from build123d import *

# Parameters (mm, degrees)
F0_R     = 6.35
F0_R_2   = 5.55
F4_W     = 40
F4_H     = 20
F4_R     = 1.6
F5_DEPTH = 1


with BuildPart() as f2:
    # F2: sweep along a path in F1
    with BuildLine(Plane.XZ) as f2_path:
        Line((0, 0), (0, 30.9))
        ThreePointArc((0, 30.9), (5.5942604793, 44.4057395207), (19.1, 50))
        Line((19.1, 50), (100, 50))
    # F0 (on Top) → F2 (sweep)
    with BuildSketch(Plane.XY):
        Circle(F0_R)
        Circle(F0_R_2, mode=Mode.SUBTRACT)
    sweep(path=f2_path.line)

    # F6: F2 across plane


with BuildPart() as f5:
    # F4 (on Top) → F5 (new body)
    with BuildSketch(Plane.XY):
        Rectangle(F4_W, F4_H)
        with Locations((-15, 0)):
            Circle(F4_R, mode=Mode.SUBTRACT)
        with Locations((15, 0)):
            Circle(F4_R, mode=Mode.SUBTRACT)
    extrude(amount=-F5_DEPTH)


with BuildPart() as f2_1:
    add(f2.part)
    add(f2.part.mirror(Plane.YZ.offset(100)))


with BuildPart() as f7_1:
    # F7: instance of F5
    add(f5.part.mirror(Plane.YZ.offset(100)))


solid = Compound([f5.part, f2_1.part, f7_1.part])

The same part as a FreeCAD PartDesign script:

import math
import FreeCAD as App
import Part
import Sketcher

V = App.Vector
Q = App.Units.Quantity


def add_polygon(sketch, points):
    """Adds a closed chain of lines whose ends are joined by coincident constraints."""
    first, n = sketch.GeometryCount, len(points)
    for a, b in zip(points, points[1:] + points[:1]):
        sketch.addGeometry(Part.LineSegment(App.Vector(*a, 0), App.Vector(*b, 0)), False)
    for i in range(n):
        sketch.addConstraint(Sketcher.Constraint("Coincident", first + i, 2, first + (i + 1) % n, 1))

doc = App.newDocument("Part")
params = doc.addObject("Spreadsheet::Sheet", "Params")
for row, (alias, value) in enumerate([
    ("sketch1_diameter", "12.7 mm"),
    ("sketch1_diameter2", "11.1 mm"),
    ("sketch2_radius", "19.1 mm"),
    ("sketch2_width", "80.9 mm"),
    ("sketch2_height", "30.9 mm"),
    ("sketch3_diameter", "3.2 mm"),
    ("sketch3_width", "40 mm"),
    ("sketch3_height", "20 mm"),
    ("pad1_length", "1 mm"),
], start=1):
    params.set(f"A{row}", alias)
    params.set(f"B{row}", "=" + value)
    params.setAlias(f"B{row}", alias)

body = doc.addObject("PartDesign::Body", "Body")

sketch1 = body.newObject("Sketcher::SketchObject", "Sketch")
sketch1.AttachmentSupport = (doc.getObject("XY_Plane"), [""])
sketch1.MapMode = "FlatFace"
sketch1.addGeometry([
    Part.Circle(V(0, 0, 0), V(0, 0, 1), 6),
    Part.Circle(V(0, 0, 0), V(0, 0, 1), 6),
], False)
sketch1.addConstraint([
    Sketcher.Constraint("Coincident", 0, 3, -1, 1),
    Sketcher.Constraint("Coincident", 1, 3, -1, 1),
    Sketcher.Constraint("Diameter", 0, Q("12.7 mm")),
    Sketcher.Constraint("Diameter", 1, Q("11.1 mm")),
])
sketch1.setExpression("Constraints[2]", "Params.sketch1_diameter")
sketch1.setExpression("Constraints[3]", "Params.sketch1_diameter2")

sketch2 = body.newObject("Sketcher::SketchObject", "Sketch001")
sketch2.AttachmentSupport = (doc.getObject("XZ_Plane"), [""])
sketch2.MapMode = "FlatFace"
sketch2.addGeometry([
    Part.LineSegment(V(0, 0, 0), V(0, 31, 0)),
    Part.ArcOfCircle(Part.Circle(V(19, 31, 0), V(0, 0, 1), 19), math.radians(90), math.radians(180)),
    Part.LineSegment(V(19, 50, 0), V(100, 50, 0)),
], False)
sketch2.addConstraint([
    Sketcher.Constraint("Tangent", 0, 2, 1, 2),
    Sketcher.Constraint("Tangent", 1, 1, 2, 1),
    Sketcher.Constraint("Vertical", 0),
    Sketcher.Constraint("Horizontal", 2),
    Sketcher.Constraint("Coincident", 0, 1, -1, 1),
    Sketcher.Constraint("Radius", 1, Q("19.1 mm")),
    Sketcher.Constraint("DistanceX", 2, 1, 2, 2, Q("80.9 mm")),
    Sketcher.Constraint("DistanceY", 0, 1, 0, 2, Q("30.9 mm")),
])
sketch2.setExpression("Constraints[5]", "Params.sketch2_radius")
sketch2.setExpression("Constraints[6]", "Params.sketch2_width")
sketch2.setExpression("Constraints[7]", "Params.sketch2_height")
doc.recompute()

additivepipe = body.newObject("PartDesign::AdditivePipe", "AdditivePipe")
additivepipe.Profile = sketch1
additivepipe.Spine = (sketch2, ["Edge1", "Edge2", "Edge3"])
body2 = doc.addObject("PartDesign::Body", "Body001")

sketch3 = body2.newObject("Sketcher::SketchObject", "Sketch002")
sketch3.AttachmentSupport = (doc.getObject("XY_Plane001"), [""])
sketch3.MapMode = "FlatFace"
add_polygon(sketch3, [(-20, 10), (-20, -10), (20, -10), (20, 10)])
sketch3.addGeometry(Part.Circle(V(-15, 0, 0), V(0, 0, 1), 1.6), False)
sketch3.addGeometry(Part.Circle(V(15, 0, 0), V(0, 0, 1), 1.6), False)
sketch3.addConstraint([
    Sketcher.Constraint("Vertical", 0),
    Sketcher.Constraint("Horizontal", 1),
    Sketcher.Constraint("Vertical", 2),
    Sketcher.Constraint("Horizontal", 3),
    Sketcher.Constraint("Equal", 4, 5),
    Sketcher.Constraint("Symmetric", 4, 3, 5, 3, -1, 1),
    Sketcher.Constraint("Symmetric", 0, 2, 2, 2, -1, 1),
    Sketcher.Constraint("PointOnObject", 4, 3, -1),
    Sketcher.Constraint("Diameter", 4, Q("3.2 mm")),
    Sketcher.Constraint("DistanceX", 1, 1, 1, 2, Q("40 mm")),
    Sketcher.Constraint("DistanceY", 0, 2, 0, 1, Q("20 mm")),
    Sketcher.Constraint("DistanceX", 4, 3, -1, 1, Q("15 mm")),
])
sketch3.setExpression("Constraints[12]", "Params.sketch3_diameter")
sketch3.setExpression("Constraints[13]", "Params.sketch3_width")
sketch3.setExpression("Constraints[14]", "Params.sketch3_height")
pad1 = body2.newObject("PartDesign::Pad", "Pad")
pad1.Profile = sketch3
pad1.setExpression("Length", "Params.pad1_length")
pad1.Reversed = True
body3 = doc.addObject("PartDesign::Body", "Body002")
doc.recompute()

body3.BaseFeature = body
doc.recompute()

mirroring = doc.addObject("Part::Mirroring", "Mirroring")
mirroring.Source = body
mirroring.Base = V(100, 0, 0)
mirroring.Normal = V(1, 0, 0)
body4 = doc.addObject("PartDesign::Body", "Body003")
body4.BaseFeature = mirroring
boolean = body3.newObject("PartDesign::Boolean", "Boolean")
boolean.Type = "Fuse"
boolean.addObjects([body4])
doc.recompute()
body5 = doc.addObject("PartDesign::Body", "Body004")
doc.recompute()

mirroring2 = doc.addObject("Part::Mirroring", "Mirroring001")
mirroring2.Source = body2
mirroring2.Base = V(100, 0, 0)
mirroring2.Normal = V(1, 0, 0)
body5.BaseFeature = mirroring2
doc.recompute()
mirroring.Visibility = False
mirroring2.Visibility = False

doc.recompute()
